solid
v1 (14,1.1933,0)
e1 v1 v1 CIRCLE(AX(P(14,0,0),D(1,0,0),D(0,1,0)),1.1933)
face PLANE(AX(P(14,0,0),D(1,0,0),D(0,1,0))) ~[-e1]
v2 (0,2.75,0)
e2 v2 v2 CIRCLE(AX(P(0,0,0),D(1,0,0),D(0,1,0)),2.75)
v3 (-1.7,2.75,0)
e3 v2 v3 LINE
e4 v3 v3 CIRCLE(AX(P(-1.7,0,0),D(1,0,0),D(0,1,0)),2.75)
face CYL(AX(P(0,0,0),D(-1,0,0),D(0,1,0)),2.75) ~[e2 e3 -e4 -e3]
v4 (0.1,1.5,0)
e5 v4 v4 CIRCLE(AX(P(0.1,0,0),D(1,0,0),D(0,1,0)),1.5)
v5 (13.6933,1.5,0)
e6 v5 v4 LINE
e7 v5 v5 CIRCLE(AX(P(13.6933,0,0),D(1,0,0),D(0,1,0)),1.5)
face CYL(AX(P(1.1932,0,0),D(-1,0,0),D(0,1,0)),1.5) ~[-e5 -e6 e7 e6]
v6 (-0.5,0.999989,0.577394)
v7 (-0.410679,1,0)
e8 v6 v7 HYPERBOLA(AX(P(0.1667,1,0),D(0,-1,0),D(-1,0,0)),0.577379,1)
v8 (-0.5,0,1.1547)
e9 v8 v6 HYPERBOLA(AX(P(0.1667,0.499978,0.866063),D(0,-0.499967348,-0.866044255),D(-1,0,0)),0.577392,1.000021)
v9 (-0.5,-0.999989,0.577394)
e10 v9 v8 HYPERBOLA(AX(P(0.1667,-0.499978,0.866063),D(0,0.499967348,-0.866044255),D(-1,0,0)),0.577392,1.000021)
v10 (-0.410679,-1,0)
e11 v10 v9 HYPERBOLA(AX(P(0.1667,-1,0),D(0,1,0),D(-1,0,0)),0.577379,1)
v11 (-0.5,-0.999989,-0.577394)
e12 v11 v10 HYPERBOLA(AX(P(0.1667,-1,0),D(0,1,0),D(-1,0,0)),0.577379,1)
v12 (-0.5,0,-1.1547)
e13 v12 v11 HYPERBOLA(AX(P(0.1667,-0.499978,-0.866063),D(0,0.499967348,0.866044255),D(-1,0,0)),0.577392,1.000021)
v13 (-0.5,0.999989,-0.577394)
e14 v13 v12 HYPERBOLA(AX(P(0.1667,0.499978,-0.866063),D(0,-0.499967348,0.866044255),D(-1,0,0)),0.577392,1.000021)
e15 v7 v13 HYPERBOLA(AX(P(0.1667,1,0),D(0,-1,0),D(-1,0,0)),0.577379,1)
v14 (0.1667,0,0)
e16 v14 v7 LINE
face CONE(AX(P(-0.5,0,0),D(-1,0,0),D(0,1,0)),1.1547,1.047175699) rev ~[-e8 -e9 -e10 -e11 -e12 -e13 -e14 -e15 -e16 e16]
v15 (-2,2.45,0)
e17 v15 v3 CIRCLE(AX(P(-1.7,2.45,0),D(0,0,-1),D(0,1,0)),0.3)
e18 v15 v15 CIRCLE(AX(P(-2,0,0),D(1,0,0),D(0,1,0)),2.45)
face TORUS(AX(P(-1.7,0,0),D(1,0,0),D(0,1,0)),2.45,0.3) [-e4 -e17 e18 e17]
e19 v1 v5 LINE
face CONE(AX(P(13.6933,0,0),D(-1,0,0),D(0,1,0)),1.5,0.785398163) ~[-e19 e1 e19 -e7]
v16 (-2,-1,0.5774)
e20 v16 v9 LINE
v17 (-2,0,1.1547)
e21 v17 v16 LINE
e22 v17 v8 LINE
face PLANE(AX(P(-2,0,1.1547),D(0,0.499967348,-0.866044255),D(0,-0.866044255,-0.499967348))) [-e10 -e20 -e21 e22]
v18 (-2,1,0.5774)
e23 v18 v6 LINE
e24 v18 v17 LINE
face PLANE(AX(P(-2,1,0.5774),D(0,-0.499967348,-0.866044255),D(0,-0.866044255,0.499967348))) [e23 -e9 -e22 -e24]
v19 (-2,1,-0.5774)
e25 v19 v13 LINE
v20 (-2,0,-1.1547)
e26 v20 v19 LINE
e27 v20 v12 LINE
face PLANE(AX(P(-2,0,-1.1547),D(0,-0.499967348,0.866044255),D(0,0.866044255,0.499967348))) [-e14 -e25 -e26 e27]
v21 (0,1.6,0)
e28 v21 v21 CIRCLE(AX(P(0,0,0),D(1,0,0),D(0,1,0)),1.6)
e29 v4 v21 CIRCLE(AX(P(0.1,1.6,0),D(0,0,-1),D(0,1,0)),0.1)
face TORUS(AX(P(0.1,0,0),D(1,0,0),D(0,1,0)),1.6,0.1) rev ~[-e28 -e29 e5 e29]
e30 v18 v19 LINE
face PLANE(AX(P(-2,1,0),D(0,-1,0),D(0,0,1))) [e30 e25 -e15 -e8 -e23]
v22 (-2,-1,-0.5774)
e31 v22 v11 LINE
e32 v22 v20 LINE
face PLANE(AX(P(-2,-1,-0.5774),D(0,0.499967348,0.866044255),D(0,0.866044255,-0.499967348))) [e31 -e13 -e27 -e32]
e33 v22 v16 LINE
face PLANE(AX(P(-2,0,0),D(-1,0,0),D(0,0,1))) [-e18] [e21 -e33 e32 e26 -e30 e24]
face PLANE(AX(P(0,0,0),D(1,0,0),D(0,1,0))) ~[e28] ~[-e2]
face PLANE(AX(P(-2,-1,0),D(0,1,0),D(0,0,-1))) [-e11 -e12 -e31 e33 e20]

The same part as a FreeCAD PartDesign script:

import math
import FreeCAD as App
import Part
import Sketcher
from FreeCAD import Vector


def edges_at(feature, points):
    """Names of the edges that pass closest to the given points."""
    edges = feature.Shape.Edges
    near = lambda p: min(range(len(edges)), key=lambda i: edges[i].distToShape(Part.Vertex(*p))[0])
    return sorted({f"Edge{near(p) + 1}" for p in points})


def add_polygon(sketch, points):
    """Adds a closed chain of lines whose ends are joined by coincident constraints."""
    first, n = sketch.GeometryCount, len(points)
    for a, b in zip(points, points[1:] + points[:1]):
        sketch.addGeometry(Part.LineSegment(App.Vector(*a, 0), App.Vector(*b, 0)), False)
    for i in range(n):
        sketch.addConstraint(Sketcher.Constraint("Coincident", first + i, 2, first + (i + 1) % n, 1))

doc = App.newDocument("Part")
body = doc.addObject("PartDesign::Body", "Body")

sketch1 = body.newObject("Sketcher::SketchObject", "Sketch")
sketch1.AttachmentSupport = (doc.getObject("XY_Plane"), [""])
sketch1.MapMode = "FlatFace"
add_polygon(sketch1, [(0.2, 0), (14, 0), (14, 1.5), (0, 1.5), (0, 2.8), (-2, 2.8), (-2, 1.2), (-0.5, 1.2)])
sketch1.addConstraint([
    Sketcher.Constraint("Horizontal", 0),
    Sketcher.Constraint("Vertical", 1),
    Sketcher.Constraint("Horizontal", 2),
    Sketcher.Constraint("Vertical", 3),
    Sketcher.Constraint("Horizontal", 4),
    Sketcher.Constraint("Vertical", 5),
    Sketcher.Constraint("Horizontal", 6),
    Sketcher.Constraint("PointOnObject", 0, 2, -1),
    Sketcher.Constraint("PointOnObject", 2, 2, -2),
    Sketcher.Constraint("Equal", 6, 1),
    Sketcher.Constraint("DistanceX", 2, 2, 2, 1, 14.0),
    Sketcher.Constraint("DistanceX", 4, 2, 4, 1, 2.0),
    Sketcher.Constraint("DistanceX", 6, 1, 6, 2, 1.5),
    Sketcher.Constraint("DistanceY", 3, 1, 3, 2, 1.25),
    Sketcher.Constraint("DistanceX", 0, 1, 0, 2, 13.8333),
    Sketcher.Constraint("DistanceY", 5, 2, 5, 1, 1.5953),
])
revolution = body.newObject("PartDesign::Revolution", "Revolution")
revolution.Profile = sketch1
revolution.ReferenceAxis = (sketch1, ["H_Axis"])
revolution.Angle = 360

sketch2 = body.newObject("Sketcher::SketchObject", "Sketch001")
sketch2.AttachmentSupport = (doc.getObject("YZ_Plane"), [""])
sketch2.MapMode = "FlatFace"
sketch2.AttachmentOffset = App.Placement(Vector(0, 0, -2), App.Rotation())
sketch2.addGeometry([
    Part.LineSegment(Vector(1, 0.6, 0), Vector(0, 1.2, 0)),
    Part.ArcOfCircle(Part.Circle(Vector(0, 0, 0), Vector(0, 0, 1), 1.2), math.radians(30), math.radians(90)),
    Part.ArcOfCircle(Part.Circle(Vector(0, 0, 0), Vector(0, 0, 1), 1.2), math.radians(90), math.radians(150)),
    Part.LineSegment(Vector(0, 1.2, 0), Vector(-1, 0.6, 0)),
    Part.ArcOfCircle(Part.Circle(Vector(0, 0, 0), Vector(0, 0, 1), 1.2), math.radians(-30), math.radians(30)),
    Part.LineSegment(Vector(1, 0.6, 0), Vector(1, -0.6, 0)),
    Part.LineSegment(Vector(-1, 0.6, 0), Vector(-1, -0.6, 0)),
    Part.ArcOfCircle(Part.Circle(Vector(0, 0, 0), Vector(0, 0, 1), 1.2), math.radians(150), math.radians(210)),
    Part.LineSegment(Vector(-1, -0.6, 0), Vector(0, -1.2, 0)),
    Part.ArcOfCircle(Part.Circle(Vector(0, 0, 0), Vector(0, 0, 1), 1.2), math.radians(-150), math.radians(-90)),
    Part.ArcOfCircle(Part.Circle(Vector(0, 0, 0), Vector(0, 0, 1), 1.2), math.radians(-90), math.radians(-30)),
    Part.LineSegment(Vector(0, -1.2, 0), Vector(1, -0.6, 0)),
], False)
sketch2.addConstraint([
    Sketcher.Constraint("Coincident", 0, 1, 1, 1),
    Sketcher.Constraint("Coincident", 1, 2, 0, 2),
    Sketcher.Constraint("Coincident", 2, 1, 3, 1),
    Sketcher.Constraint("Coincident", 3, 2, 2, 2),
    Sketcher.Constraint("Coincident", 4, 1, 5, 2),
    Sketcher.Constraint("Coincident", 5, 1, 4, 2),
    Sketcher.Constraint("Coincident", 6, 1, 7, 1),
    Sketcher.Constraint("Coincident", 7, 2, 6, 2),
    Sketcher.Constraint("Coincident", 8, 1, 9, 1),
    Sketcher.Constraint("Coincident", 9, 2, 8, 2),
    Sketcher.Constraint("Coincident", 10, 1, 11, 1),
    Sketcher.Constraint("Coincident", 11, 2, 10, 2),
    Sketcher.Constraint("Vertical", 5),
    Sketcher.Constraint("Vertical", 6),
    Sketcher.Constraint("Coincident", 1, 3, -1, 1),
    Sketcher.Constraint("Coincident", 2, 3, -1, 1),
    Sketcher.Constraint("Coincident", 4, 3, -1, 1),
    Sketcher.Constraint("Coincident", 7, 3, -1, 1),
    Sketcher.Constraint("Coincident", 9, 3, -1, 1),
    Sketcher.Constraint("Coincident", 10, 3, -1, 1),
    Sketcher.Constraint("Coincident", 2, 1, 1, 2),
    Sketcher.Constraint("Coincident", 5, 1, 0, 1),
    Sketcher.Constraint("Coincident", 6, 1, 3, 2),
    Sketcher.Constraint("Coincident", 8, 1, 7, 2),
    Sketcher.Constraint("Coincident", 10, 1, 9, 2),
    Sketcher.Constraint("PointOnObject", 1, 2, -2),
    Sketcher.Constraint("PointOnObject", 9, 2, -2),
    Sketcher.Constraint("Parallel", 0, 8),
    Sketcher.Constraint("Parallel", 3, 11),
    Sketcher.Constraint("DistanceX", -1, 1, 0, 1, 1.0),
    Sketcher.Constraint("Radius", 1, 1.1547),
])
pad1 = body.newObject("PartDesign::Pad", "Pad")
pad1.Profile = sketch2
pad1.Type = "UpToFirst"
doc.recompute()

fillet = body.newObject("PartDesign::Fillet", "Fillet")
fillet.Base = (pad1, edges_at(pad1, [(-2, -2.75, 0)]))
fillet.Radius = 0.3
doc.recompute()

chamfer = body.newObject("PartDesign::Chamfer", "Chamfer")
chamfer.Base = (fillet, edges_at(fillet, [(14, -1.5, 0)]))
chamfer.ChamferType = "Two distances"
chamfer.Size = 0.3067
chamfer.Size2 = 0.3067
doc.recompute()

fillet2 = body.newObject("PartDesign::Fillet", "Fillet001")
fillet2.Base = (chamfer, edges_at(chamfer, [(0, -1.5, 0)]))
fillet2.Radius = 0.1

doc.recompute()
